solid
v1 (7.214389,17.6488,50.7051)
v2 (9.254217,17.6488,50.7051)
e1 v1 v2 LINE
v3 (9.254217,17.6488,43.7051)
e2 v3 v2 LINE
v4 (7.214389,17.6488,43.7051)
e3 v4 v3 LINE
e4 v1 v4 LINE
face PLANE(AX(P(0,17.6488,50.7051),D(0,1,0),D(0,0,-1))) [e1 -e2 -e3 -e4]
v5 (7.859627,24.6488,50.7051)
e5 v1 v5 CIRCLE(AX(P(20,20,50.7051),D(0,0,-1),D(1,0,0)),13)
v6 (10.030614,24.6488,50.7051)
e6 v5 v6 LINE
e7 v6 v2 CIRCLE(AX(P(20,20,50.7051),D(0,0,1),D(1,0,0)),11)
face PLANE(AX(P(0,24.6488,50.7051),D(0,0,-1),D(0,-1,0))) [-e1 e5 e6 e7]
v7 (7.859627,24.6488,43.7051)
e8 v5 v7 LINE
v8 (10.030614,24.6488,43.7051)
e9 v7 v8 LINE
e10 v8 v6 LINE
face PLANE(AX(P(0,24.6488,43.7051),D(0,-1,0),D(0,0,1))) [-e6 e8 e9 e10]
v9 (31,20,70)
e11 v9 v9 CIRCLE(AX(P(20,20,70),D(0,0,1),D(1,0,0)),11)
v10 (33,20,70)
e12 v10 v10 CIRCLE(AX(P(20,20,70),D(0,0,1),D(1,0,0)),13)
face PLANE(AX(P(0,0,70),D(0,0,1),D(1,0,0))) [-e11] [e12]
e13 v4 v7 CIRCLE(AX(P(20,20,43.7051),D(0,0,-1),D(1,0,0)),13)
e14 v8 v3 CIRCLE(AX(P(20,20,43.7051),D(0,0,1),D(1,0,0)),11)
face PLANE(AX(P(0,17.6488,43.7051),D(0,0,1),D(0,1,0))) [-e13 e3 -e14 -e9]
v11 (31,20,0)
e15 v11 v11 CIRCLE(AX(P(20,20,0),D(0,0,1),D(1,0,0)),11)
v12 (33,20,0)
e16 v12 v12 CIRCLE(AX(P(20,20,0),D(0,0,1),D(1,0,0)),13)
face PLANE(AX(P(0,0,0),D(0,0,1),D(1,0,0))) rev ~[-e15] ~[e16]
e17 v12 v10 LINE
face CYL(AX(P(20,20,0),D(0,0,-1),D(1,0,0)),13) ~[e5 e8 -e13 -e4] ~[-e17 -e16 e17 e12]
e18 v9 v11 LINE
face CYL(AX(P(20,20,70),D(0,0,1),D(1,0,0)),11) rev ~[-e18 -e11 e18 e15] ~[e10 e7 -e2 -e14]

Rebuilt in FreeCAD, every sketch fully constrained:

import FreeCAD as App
import Part
import Sketcher

V = App.Vector

doc = App.newDocument("Part")
params = doc.addObject("Spreadsheet::Sheet", "Params")
for row, (alias, value) in enumerate([
    ("sketch1_diameter", "26 mm"),
    ("pad1_length", "70 mm"),
    ("sketch2_diameter", "22 mm"),
    ("pocket1_length", "70 mm"),
    ("sketch3_width", "7 mm"),
    ("pocket2_length", "15 mm"),
    ("sketch4_width", "7 mm"),
    ("pocket3_length", "12 mm"),
], start=1):
    params.set(f"A{row}", alias)
    params.set(f"B{row}", "=" + value)
    params.setAlias(f"B{row}", alias)

body = doc.addObject("PartDesign::Body", "Body")

sketch1 = body.newObject("Sketcher::SketchObject", "Sketch")
sketch1.AttachmentSupport = (doc.getObject("XY_Plane"), [""])
sketch1.MapMode = "FlatFace"
sketch1.addGeometry(Part.Circle(V(20, 20, 0), V(0, 0, 1), 13), False)
sketch1.addConstraint(Sketcher.Constraint("Diameter", 0, 26.0))
sketch1.addConstraint(Sketcher.Constraint("DistanceX", -1, 1, 0, 3, 20.0))
sketch1.addConstraint(Sketcher.Constraint("DistanceY", -1, 1, 0, 3, 20.0))
sketch1.setExpression("Constraints[0]", "Params.sketch1_diameter")
pad1 = body.newObject("PartDesign::Pad", "Pad")
pad1.Profile = sketch1
pad1.setExpression("Length", "Params.pad1_length")

sketch2 = body.newObject("Sketcher::SketchObject", "Sketch001")
sketch2.AttachmentSupport = (doc.getObject("XY_Plane"), [""])
sketch2.MapMode = "FlatFace"
sketch2.AttachmentOffset = App.Placement(V(0, 0, 70), App.Rotation())
sketch2.addGeometry(Part.Circle(V(20, 20, 0), V(0, 0, 1), 11), False)
sketch2.addConstraint(Sketcher.Constraint("Diameter", 0, 22.0))
sketch2.addConstraint(Sketcher.Constraint("DistanceX", -1, 1, 0, 3, 20.0))
sketch2.addConstraint(Sketcher.Constraint("DistanceY", -1, 1, 0, 3, 20.0))
sketch2.setExpression("Constraints[0]", "Params.sketch2_diameter")
pocket1 = body.newObject("PartDesign::Pocket", "Pocket")
pocket1.Profile = sketch2
pocket1.setExpression("Length", "Params.pocket1_length")

sketch3 = body.newObject("Sketcher::SketchObject", "Sketch002")
sketch3.AttachmentSupport = (doc.getObject("YZ_Plane"), [""])
sketch3.MapMode = "FlatFace"
sketch3.addGeometry(Part.LineSegment(V(24.6488, 50.7051, 0), V(17.6488, 50.7051, 0)), False)
sketch3.addGeometry(Part.LineSegment(V(17.6488, 50.7051, 0), V(17.6488, 43.7051, 0)), False)
sketch3.addGeometry(Part.LineSegment(V(17.6488, 43.7051, 0), V(24.6488, 43.7051, 0)), False)
sketch3.addGeometry(Part.LineSegment(V(24.6488, 43.7051, 0), V(24.6488, 50.7051, 0)), False)
sketch3.addConstraint(Sketcher.Constraint("Coincident", 0, 2, 1, 1))
sketch3.addConstraint(Sketcher.Constraint("Coincident", 1, 2, 2, 1))
sketch3.addConstraint(Sketcher.Constraint("Coincident", 2, 2, 3, 1))
sketch3.addConstraint(Sketcher.Constraint("Coincident", 3, 2, 0, 1))
sketch3.addConstraint(Sketcher.Constraint("Horizontal", 0))
sketch3.addConstraint(Sketcher.Constraint("Vertical", 1))
sketch3.addConstraint(Sketcher.Constraint("Horizontal", 2))
sketch3.addConstraint(Sketcher.Constraint("Vertical", 3))
sketch3.addConstraint(Sketcher.Constraint("Equal", 2, 1))
sketch3.addConstraint(Sketcher.Constraint("DistanceX", 0, 2, 0, 1, 7.0))
sketch3.addConstraint(Sketcher.Constraint("DistanceY", -1, 1, 0, 2, 50.705))
sketch3.addConstraint(Sketcher.Constraint("DistanceX", -1, 1, 0, 2, 17.6488))
sketch3.setExpression("Constraints[9]", "Params.sketch3_width")
pocket2 = body.newObject("PartDesign::Pocket", "Pocket001")
pocket2.Profile = sketch3
pocket2.setExpression("Length", "Params.pocket2_length")
pocket2.Reversed = True

sketch4 = body.newObject("Sketcher::SketchObject", "Sketch003")
sketch4.AttachmentSupport = (doc.getObject("YZ_Plane"), [""])
sketch4.MapMode = "FlatFace"
sketch4.addGeometry(Part.LineSegment(V(24.6488, 50.7051, 0), V(17.6488, 50.7051, 0)), False)
sketch4.addGeometry(Part.LineSegment(V(17.6488, 50.7051, 0), V(17.6488, 43.7051, 0)), False)
sketch4.addGeometry(Part.LineSegment(V(17.6488, 43.7051, 0), V(24.6488, 43.7051, 0)), False)
sketch4.addGeometry(Part.LineSegment(V(24.6488, 43.7051, 0), V(24.6488, 50.7051, 0)), False)
sketch4.addConstraint(Sketcher.Constraint("Coincident", 0, 2, 1, 1))
sketch4.addConstraint(Sketcher.Constraint("Coincident", 1, 2, 2, 1))
sketch4.addConstraint(Sketcher.Constraint("Coincident", 2, 2, 3, 1))
sketch4.addConstraint(Sketcher.Constraint("Coincident", 3, 2, 0, 1))
sketch4.addConstraint(Sketcher.Constraint("Horizontal", 0))
sketch4.addConstraint(Sketcher.Constraint("Vertical", 1))
sketch4.addConstraint(Sketcher.Constraint("Horizontal", 2))
sketch4.addConstraint(Sketcher.Constraint("Vertical", 3))
sketch4.addConstraint(Sketcher.Constraint("Equal", 2, 1))
sketch4.addConstraint(Sketcher.Constraint("DistanceX", 0, 2, 0, 1, 7.0))
sketch4.addConstraint(Sketcher.Constraint("DistanceY", -1, 1, 0, 2, 50.705))
sketch4.addConstraint(Sketcher.Constraint("DistanceX", -1, 1, 0, 2, 17.6488))
sketch4.setExpression("Constraints[9]", "Params.sketch4_width")
pocket3 = body.newObject("PartDesign::Pocket", "Pocket002")
pocket3.Profile = sketch4
pocket3.setExpression("Length", "Params.pocket3_length")
pocket3.Reversed = True

doc.recompute()
